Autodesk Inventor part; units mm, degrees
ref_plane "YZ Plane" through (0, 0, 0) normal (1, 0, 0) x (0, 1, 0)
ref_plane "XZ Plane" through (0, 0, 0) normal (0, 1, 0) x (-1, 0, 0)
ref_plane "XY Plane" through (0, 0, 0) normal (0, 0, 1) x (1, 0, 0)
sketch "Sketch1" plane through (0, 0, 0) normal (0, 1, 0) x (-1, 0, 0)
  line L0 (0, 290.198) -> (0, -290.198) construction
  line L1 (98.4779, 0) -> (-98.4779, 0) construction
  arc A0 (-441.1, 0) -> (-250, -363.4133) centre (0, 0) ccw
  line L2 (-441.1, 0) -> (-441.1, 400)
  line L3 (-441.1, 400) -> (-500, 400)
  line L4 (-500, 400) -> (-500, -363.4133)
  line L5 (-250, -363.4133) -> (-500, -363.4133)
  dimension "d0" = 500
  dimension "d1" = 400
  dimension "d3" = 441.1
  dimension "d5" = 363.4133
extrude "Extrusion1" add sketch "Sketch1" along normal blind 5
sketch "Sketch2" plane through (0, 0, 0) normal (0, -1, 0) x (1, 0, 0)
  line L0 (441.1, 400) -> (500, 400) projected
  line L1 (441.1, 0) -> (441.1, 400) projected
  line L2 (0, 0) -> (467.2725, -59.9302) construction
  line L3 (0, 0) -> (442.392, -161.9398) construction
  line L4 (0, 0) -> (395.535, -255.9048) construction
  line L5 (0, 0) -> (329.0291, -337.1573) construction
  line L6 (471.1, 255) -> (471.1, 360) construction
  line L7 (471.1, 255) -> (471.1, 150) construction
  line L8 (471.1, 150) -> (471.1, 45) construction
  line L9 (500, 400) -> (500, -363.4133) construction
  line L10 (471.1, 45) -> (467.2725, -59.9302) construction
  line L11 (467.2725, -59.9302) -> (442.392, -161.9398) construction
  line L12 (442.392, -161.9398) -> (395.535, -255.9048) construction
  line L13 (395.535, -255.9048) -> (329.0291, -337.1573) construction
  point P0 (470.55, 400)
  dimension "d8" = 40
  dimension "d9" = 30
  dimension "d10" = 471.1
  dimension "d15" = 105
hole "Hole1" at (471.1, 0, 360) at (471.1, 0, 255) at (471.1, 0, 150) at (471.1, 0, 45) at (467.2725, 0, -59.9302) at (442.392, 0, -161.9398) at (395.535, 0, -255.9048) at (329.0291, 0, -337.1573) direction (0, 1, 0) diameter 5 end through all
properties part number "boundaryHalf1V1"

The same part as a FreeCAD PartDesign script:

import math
import FreeCAD as App
import Part
import Sketcher
from FreeCAD import Vector

doc = App.newDocument("Part")
body = doc.addObject("PartDesign::Body", "Body")

# Sketch on XZ plane
sketch1 = body.newObject("Sketcher::SketchObject", "Sketch")
sketch1.AttachmentSupport = (doc.getObject("XZ_Plane"), [""])
sketch1.MapMode = "FlatFace"
sketch1.addGeometry([
    Part.ArcOfCircle(Part.Circle(Vector(0, 0, 0), Vector(0, 0, 1), 441), math.radians(-55), math.radians(0)),  # 0
    Part.LineSegment(Vector(441, 0, 0), Vector(441, 400, 0)),  # 1
    Part.LineSegment(Vector(441, 400, 0), Vector(500, 400, 0)),  # 2
    Part.LineSegment(Vector(500, 400, 0), Vector(500, -363, 0)),  # 3
    Part.LineSegment(Vector(500, -363, 0), Vector(250, -363, 0)),  # 4
], False)
sketch1.addConstraint([
    Sketcher.Constraint("Tangent", 0, 2, 1, 1),
    Sketcher.Constraint("Coincident", 1, 2, 2, 1),
    Sketcher.Constraint("Coincident", 2, 2, 3, 1),
    Sketcher.Constraint("Coincident", 3, 2, 4, 1),
    Sketcher.Constraint("Coincident", 4, 2, 0, 1),
    Sketcher.Constraint("Vertical", 1),
    Sketcher.Constraint("Horizontal", 2),
    Sketcher.Constraint("Vertical", 3),
    Sketcher.Constraint("Horizontal", 4),
    Sketcher.Constraint("Coincident", 0, 3, -1, 1),
    Sketcher.Constraint("Radius", 0, 441.1),
    Sketcher.Constraint("DistanceY", 1, 1, 1, 2, 400.0),
    Sketcher.Constraint("DistanceX", -1, 1, 2, 2, 500.0),
    Sketcher.Constraint("DistanceX", 4, 2, 4, 1, 250.0),
])
pad1 = body.newObject("PartDesign::Pad", "Pad")
pad1.Profile = sketch1
pad1.Length = 5
pad1.Reversed = True

# Sketch on XZ plane
sketch2 = body.newObject("Sketcher::SketchObject", "Sketch001")
sketch2.AttachmentSupport = (doc.getObject("XZ_Plane"), [""])
sketch2.MapMode = "FlatFace"
sketch2.addGeometry([
    Part.Circle(Vector(471.1, 360, 0), Vector(0, 0, 1), 2.5),  # 0
    Part.Circle(Vector(471.1, 255, 0), Vector(0, 0, 1), 2.5),  # 1
    Part.Circle(Vector(471.1, 150, 0), Vector(0, 0, 1), 2.5),  # 2
    Part.Circle(Vector(471.1, 45, 0), Vector(0, 0, 1), 2.5),  # 3
    Part.Circle(Vector(467.3, -59.9, 0), Vector(0, 0, 1), 2.5),  # 4
    Part.Circle(Vector(442.4, -161.9, 0), Vector(0, 0, 1), 2.5),  # 5
    Part.Circle(Vector(395.5, -255.9, 0), Vector(0, 0, 1), 2.5),  # 6
    Part.Circle(Vector(329, -337.2, 0), Vector(0, 0, 1), 2.5),  # 7
], False)
sketch2.addConstraint([
    Sketcher.Constraint("Equal", 0, 1),
    Sketcher.Constraint("Equal", 1, 2),
    Sketcher.Constraint("Equal", 2, 3),
    Sketcher.Constraint("Equal", 3, 4),
    Sketcher.Constraint("Equal", 4, 5),
    Sketcher.Constraint("Equal", 5, 6),
    Sketcher.Constraint("Equal", 6, 7),
    Sketcher.Constraint("Vertical", 0, 3, 1, 3),
    Sketcher.Constraint("Vertical", 1, 3, 2, 3),
    Sketcher.Constraint("Vertical", 2, 3, 3, 3),
    Sketcher.Constraint("Diameter", 0, 5.0),
    Sketcher.Constraint("DistanceY", -1, 1, 0, 3, 360.0),
    Sketcher.Constraint("DistanceY", -1, 1, 1, 3, 255.0),
    Sketcher.Constraint("DistanceY", -1, 1, 2, 3, 150.0),
    Sketcher.Constraint("DistanceY", -1, 1, 3, 3, 45.0),
    Sketcher.Constraint("DistanceX", -1, 1, 0, 3, 471.1),
    Sketcher.Constraint("DistanceX", -1, 1, 5, 3, 442.392),
    Sketcher.Constraint("DistanceX", -1, 1, 6, 3, 395.535),
    Sketcher.Constraint("DistanceX", -1, 1, 7, 3, 329.029),
    Sketcher.Constraint("DistanceY", 6, 3, 5, 3, 93.965),
    Sketcher.Constraint("DistanceY", 7, 3, 4, 3, 277.227),
    Sketcher.Constraint("DistanceX", -1, 1, 4, 3, 467.2725),
    Sketcher.Constraint("DistanceY", 4, 3, -1, 1, 59.9302),
    Sketcher.Constraint("DistanceY", 5, 3, -1, 1, 161.9398),
])
doc.recompute()
hole = body.newObject("PartDesign::Hole", "Hole")
hole.Profile = sketch2
hole.ThreadType = "None"
hole.Diameter = 5
hole.DepthType = "ThroughAll"

doc.recompute()
